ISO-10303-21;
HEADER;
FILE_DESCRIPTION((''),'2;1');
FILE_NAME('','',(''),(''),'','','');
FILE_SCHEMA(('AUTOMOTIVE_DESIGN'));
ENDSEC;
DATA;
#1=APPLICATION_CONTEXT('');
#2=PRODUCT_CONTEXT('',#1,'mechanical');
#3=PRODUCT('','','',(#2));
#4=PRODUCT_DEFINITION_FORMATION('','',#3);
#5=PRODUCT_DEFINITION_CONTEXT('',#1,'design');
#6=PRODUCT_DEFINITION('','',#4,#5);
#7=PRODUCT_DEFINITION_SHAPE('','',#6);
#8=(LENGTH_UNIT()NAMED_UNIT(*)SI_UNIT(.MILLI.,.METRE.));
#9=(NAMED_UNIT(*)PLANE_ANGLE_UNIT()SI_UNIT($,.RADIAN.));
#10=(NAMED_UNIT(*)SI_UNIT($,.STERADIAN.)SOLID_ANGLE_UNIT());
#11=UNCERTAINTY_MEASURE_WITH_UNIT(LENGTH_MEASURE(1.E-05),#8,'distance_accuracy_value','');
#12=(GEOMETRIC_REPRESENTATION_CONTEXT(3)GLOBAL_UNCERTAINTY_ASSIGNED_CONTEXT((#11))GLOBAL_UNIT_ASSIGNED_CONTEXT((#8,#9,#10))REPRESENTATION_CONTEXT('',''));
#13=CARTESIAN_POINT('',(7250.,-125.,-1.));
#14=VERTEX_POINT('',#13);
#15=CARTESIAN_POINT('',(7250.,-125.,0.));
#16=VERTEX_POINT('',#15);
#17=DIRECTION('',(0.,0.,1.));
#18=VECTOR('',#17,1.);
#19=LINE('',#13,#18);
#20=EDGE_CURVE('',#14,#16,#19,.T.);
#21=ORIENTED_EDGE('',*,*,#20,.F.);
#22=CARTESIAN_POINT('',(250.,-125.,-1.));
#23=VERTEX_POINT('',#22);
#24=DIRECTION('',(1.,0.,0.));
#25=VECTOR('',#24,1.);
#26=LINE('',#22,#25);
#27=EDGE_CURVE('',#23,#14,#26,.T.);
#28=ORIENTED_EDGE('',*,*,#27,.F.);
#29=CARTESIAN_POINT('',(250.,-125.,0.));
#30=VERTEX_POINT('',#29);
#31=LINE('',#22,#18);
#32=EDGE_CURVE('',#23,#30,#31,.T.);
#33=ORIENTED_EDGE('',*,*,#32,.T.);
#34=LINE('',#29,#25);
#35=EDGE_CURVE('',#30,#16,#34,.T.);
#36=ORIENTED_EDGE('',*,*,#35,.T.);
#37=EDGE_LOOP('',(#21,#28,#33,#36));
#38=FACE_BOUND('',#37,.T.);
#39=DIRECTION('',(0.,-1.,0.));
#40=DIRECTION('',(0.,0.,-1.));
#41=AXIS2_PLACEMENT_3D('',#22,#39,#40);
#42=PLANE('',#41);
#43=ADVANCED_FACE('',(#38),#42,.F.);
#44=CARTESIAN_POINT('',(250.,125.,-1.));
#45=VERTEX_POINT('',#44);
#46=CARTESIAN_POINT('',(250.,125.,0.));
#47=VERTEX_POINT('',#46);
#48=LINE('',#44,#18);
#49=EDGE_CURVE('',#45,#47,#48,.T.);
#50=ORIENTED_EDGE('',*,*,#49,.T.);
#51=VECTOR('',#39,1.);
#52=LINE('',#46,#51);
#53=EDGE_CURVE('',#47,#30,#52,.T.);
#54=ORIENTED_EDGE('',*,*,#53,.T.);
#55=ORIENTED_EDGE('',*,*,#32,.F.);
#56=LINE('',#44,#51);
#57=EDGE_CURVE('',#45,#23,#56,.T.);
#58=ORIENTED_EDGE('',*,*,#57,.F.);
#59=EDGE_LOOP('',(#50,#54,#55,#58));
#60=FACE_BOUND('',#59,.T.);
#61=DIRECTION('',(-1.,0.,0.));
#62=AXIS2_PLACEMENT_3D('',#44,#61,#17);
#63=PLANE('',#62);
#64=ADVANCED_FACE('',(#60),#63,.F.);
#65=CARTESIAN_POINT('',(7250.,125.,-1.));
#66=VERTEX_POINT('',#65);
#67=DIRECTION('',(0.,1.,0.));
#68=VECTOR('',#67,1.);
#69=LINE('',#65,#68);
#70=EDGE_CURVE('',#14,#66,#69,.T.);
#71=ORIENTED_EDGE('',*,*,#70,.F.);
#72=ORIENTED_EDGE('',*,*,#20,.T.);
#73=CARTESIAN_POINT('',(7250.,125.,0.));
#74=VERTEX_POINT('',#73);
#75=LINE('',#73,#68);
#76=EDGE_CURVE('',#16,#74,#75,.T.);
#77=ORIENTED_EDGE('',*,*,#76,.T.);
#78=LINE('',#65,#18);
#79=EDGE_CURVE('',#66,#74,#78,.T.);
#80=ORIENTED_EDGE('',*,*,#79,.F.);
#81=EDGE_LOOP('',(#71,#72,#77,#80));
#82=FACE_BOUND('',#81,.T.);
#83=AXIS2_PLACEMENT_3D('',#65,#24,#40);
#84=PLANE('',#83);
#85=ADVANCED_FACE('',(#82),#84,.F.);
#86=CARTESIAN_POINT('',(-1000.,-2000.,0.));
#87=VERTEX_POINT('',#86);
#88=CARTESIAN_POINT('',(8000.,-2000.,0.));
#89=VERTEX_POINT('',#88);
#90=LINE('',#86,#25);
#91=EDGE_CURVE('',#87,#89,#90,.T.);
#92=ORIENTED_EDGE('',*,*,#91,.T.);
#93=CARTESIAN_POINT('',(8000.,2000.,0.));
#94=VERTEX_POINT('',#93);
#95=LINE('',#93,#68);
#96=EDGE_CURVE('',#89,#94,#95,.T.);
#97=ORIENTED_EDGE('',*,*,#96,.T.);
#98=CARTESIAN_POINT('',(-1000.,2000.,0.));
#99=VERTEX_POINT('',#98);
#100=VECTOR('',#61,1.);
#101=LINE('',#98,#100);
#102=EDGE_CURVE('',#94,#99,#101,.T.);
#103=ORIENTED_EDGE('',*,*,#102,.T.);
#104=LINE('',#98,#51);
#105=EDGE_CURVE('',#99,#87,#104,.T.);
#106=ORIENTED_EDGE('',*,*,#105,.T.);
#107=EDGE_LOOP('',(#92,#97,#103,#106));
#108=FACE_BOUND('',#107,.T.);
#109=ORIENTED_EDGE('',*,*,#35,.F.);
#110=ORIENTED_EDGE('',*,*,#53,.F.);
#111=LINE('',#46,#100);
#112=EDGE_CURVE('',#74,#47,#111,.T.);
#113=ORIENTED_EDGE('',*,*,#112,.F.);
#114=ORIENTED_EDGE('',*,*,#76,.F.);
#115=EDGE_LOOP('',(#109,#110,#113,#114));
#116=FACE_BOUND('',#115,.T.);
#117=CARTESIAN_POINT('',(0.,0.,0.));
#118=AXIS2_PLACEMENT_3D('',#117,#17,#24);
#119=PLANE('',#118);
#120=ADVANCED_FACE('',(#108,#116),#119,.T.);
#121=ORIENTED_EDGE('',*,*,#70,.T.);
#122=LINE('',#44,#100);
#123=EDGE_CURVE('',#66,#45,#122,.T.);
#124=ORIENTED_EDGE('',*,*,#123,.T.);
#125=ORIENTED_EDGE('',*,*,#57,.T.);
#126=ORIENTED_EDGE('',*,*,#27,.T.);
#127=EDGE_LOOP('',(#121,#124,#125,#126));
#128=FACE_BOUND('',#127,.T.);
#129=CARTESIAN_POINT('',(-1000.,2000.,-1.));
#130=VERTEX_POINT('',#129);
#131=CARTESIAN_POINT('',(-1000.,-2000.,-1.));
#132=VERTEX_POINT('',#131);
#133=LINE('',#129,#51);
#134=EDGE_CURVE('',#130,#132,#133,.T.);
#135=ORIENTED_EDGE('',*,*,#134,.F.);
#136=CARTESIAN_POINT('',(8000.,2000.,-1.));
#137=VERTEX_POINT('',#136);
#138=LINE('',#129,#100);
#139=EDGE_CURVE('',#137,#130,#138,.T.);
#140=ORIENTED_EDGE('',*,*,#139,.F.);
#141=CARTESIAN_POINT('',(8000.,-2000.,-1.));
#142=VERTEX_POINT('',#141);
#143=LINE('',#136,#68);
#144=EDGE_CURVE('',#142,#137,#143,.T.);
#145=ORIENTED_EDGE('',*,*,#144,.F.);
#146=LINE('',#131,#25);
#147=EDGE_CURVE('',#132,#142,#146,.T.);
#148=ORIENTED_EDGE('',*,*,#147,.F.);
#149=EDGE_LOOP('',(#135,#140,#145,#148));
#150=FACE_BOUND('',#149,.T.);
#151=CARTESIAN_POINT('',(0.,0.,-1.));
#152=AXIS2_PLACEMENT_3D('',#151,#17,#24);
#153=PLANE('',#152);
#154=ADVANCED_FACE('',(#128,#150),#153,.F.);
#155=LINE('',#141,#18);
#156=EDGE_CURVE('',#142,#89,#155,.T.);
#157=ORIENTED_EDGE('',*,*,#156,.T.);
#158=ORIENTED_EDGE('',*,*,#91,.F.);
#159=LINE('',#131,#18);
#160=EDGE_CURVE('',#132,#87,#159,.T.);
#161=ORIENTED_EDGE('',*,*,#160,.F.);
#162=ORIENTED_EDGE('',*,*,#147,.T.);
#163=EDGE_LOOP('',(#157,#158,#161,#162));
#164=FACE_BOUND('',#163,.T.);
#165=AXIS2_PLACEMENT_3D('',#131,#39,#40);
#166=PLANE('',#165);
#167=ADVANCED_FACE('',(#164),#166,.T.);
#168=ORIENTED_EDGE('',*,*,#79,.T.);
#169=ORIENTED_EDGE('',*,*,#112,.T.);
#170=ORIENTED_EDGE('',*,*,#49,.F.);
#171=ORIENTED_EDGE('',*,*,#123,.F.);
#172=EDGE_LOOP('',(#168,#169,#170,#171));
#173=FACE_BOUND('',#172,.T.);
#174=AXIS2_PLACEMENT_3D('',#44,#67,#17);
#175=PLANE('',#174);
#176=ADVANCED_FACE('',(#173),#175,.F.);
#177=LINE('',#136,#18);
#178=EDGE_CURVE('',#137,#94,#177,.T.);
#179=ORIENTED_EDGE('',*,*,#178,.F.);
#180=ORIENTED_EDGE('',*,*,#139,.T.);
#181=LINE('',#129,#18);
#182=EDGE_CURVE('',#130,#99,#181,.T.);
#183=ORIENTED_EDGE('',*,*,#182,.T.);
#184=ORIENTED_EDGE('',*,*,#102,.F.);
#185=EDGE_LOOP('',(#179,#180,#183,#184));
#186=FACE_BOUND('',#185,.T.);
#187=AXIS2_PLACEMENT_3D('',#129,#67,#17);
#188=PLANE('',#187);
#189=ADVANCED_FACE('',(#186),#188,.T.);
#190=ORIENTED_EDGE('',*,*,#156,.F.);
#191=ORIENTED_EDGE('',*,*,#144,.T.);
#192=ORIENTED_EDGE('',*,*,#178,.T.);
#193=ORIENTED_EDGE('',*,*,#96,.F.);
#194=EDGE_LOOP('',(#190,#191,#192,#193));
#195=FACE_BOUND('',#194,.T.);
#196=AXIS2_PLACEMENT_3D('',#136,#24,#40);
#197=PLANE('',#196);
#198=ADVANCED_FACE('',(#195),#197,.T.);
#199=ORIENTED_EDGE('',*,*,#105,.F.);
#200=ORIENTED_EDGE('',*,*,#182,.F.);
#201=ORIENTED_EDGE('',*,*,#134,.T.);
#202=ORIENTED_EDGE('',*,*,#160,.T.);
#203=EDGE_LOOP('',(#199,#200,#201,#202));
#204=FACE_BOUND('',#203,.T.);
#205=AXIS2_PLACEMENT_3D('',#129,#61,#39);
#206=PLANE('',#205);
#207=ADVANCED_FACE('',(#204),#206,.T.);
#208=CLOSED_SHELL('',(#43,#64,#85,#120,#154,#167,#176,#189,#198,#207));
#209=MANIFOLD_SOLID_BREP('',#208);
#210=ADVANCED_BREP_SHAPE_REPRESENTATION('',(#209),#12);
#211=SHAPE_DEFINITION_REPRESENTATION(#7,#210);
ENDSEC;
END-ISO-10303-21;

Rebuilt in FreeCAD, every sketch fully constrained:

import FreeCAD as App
import Part
import Sketcher


def add_polygon(sketch, points):
    """Adds a closed chain of lines whose ends are joined by coincident constraints."""
    first, n = sketch.GeometryCount, len(points)
    for a, b in zip(points, points[1:] + points[:1]):
        sketch.addGeometry(Part.LineSegment(App.Vector(*a, 0), App.Vector(*b, 0)), False)
    for i in range(n):
        sketch.addConstraint(Sketcher.Constraint("Coincident", first + i, 2, first + (i + 1) % n, 1))

doc = App.newDocument("Part")
body = doc.addObject("PartDesign::Body", "Body")

sketch1 = body.newObject("Sketcher::SketchObject", "Sketch")
sketch1.AttachmentSupport = (doc.getObject("XY_Plane"), [""])
sketch1.MapMode = "FlatFace"
add_polygon(sketch1, [(-1000, 2000), (-1000, -2000), (8000, -2000), (8000, 2000)])
add_polygon(sketch1, [(7250, -125), (250, -125), (250, 125), (7250, 125)])
sketch1.addConstraint(Sketcher.Constraint("Vertical", 0))
sketch1.addConstraint(Sketcher.Constraint("Horizontal", 1))
sketch1.addConstraint(Sketcher.Constraint("Vertical", 2))
sketch1.addConstraint(Sketcher.Constraint("Horizontal", 3))
sketch1.addConstraint(Sketcher.Constraint("Horizontal", 4))
sketch1.addConstraint(Sketcher.Constraint("Vertical", 5))
sketch1.addConstraint(Sketcher.Constraint("Horizontal", 6))
sketch1.addConstraint(Sketcher.Constraint("Vertical", 7))
sketch1.addConstraint(Sketcher.Constraint("DistanceX", 1, 1, 1, 2, 9000.0))
sketch1.addConstraint(Sketcher.Constraint("DistanceX", 4, 2, 4, 1, 7000.0))
sketch1.addConstraint(Sketcher.Constraint("DistanceY", 0, 2, 0, 1, 4000.0))
sketch1.addConstraint(Sketcher.Constraint("DistanceY", 5, 1, 5, 2, 250.0))
sketch1.addConstraint(Sketcher.Constraint("DistanceX", 0, 2, -1, 1, 1000.0))
sketch1.addConstraint(Sketcher.Constraint("DistanceY", 0, 2, -1, 1, 2000.0))
sketch1.addConstraint(Sketcher.Constraint("DistanceX", -1, 1, 4, 2, 250.0))
sketch1.addConstraint(Sketcher.Constraint("DistanceY", 4, 2, -1, 1, 125.0))
pad1 = body.newObject("PartDesign::Pad", "Pad")
pad1.Profile = sketch1
pad1.Length = 1
pad1.Reversed = True

doc.recompute()
